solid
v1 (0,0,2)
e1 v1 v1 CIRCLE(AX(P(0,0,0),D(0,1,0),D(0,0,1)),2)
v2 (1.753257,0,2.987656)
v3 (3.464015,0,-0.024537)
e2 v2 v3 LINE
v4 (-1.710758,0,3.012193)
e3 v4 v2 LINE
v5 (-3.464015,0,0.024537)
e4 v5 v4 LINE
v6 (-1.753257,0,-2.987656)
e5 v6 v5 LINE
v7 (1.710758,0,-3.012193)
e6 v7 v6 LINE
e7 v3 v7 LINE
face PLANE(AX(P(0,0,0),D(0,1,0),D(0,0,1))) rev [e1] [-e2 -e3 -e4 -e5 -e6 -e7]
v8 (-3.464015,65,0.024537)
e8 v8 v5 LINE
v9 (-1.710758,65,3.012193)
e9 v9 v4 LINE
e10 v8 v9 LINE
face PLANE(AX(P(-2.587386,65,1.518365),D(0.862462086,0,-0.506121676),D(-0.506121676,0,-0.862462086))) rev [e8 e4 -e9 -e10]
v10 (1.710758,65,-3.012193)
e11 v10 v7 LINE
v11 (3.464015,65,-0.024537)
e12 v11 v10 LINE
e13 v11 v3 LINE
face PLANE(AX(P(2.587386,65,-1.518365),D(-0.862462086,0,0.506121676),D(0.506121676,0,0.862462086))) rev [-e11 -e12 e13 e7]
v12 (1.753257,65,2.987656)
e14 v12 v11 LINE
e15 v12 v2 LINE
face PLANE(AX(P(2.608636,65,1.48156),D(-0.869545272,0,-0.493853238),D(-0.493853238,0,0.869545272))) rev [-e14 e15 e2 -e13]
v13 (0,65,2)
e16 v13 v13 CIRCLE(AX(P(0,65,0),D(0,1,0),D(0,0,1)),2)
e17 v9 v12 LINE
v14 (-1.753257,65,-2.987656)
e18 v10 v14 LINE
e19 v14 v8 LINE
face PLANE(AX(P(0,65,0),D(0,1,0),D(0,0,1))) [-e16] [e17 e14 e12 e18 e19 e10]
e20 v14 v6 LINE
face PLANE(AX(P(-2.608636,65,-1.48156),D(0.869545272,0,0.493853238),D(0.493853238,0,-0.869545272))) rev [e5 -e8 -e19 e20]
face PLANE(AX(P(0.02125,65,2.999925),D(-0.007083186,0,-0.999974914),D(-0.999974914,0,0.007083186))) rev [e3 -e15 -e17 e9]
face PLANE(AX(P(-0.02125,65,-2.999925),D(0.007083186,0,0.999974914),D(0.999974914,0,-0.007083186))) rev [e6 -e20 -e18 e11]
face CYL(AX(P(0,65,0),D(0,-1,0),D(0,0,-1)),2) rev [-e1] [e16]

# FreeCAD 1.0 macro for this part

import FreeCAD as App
import Part
import Sketcher
from FreeCAD import Vector

doc = App.newDocument("Part")
body = doc.addObject("PartDesign::Body", "Body")

# Sketch on XZ plane
sketch1 = doc.addObject("Sketcher::SketchObject", "Sketch")
body.addObject(sketch1)
sketch1.AttachmentSupport = (doc.XZ_Plane, [""])
sketch1.MapMode = "FlatFace"
sketch1.addGeometry([
    Part.LineSegment(Vector(1.753257, 2.987656, 0), Vector(3.464015, -0.024537, 0)),  # 0
    Part.LineSegment(Vector(3.464015, -0.024537, 0), Vector(1.710758, -3.012193, 0)),  # 1
    Part.LineSegment(Vector(1.710758, -3.012193, 0), Vector(-1.753257, -2.987656, 0)),  # 2
    Part.LineSegment(Vector(-1.753257, -2.987656, 0), Vector(-3.464015, 0.024537, 0)),  # 3
    Part.LineSegment(Vector(-3.464015, 0.024537, 0), Vector(-1.710758, 3.012193, 0)),  # 4
    Part.LineSegment(Vector(-1.710758, 3.012193, 0), Vector(1.753257, 2.987656, 0)),  # 5
    Part.Circle(Vector(0, 0, 0), Vector(0, 0, 1), 2),  # 6
], False)
sketch1.addConstraint([
    Sketcher.Constraint("Coincident", 0, 2, 1, 1),
    Sketcher.Constraint("Coincident", 1, 2, 2, 1),
    Sketcher.Constraint("Coincident", 2, 2, 3, 1),
    Sketcher.Constraint("Coincident", 3, 2, 4, 1),
    Sketcher.Constraint("Coincident", 4, 2, 5, 1),
    Sketcher.Constraint("Coincident", 5, 2, 0, 1),
    Sketcher.Constraint("Coincident", 6, 3, -1, 1),
    Sketcher.Constraint("Symmetric", 0, 2, 3, 2, -1, 1),
    Sketcher.Constraint("Symmetric", 1, 2, 4, 2, -1, 1),
    Sketcher.Constraint("Symmetric", 2, 2, 5, 2, -1, 1),
    Sketcher.Constraint("Equal", 0, 1),
    Sketcher.Constraint("Equal", 1, 2),
    Sketcher.Constraint("Diameter", 6, 4.0),
    Sketcher.Constraint("Distance", 0, 3.464102),
    Sketcher.Constraint("DistanceX", 2, 2, 4, 2, 0.042499),
    Sketcher.Constraint("DistanceX", 2, 2, 0, 2, 5.217272),
    Sketcher.Constraint("DistanceY", 2, 2, 0, 2, 2.963119),
])
pad1 = doc.addObject("PartDesign::Pad", "Pad")
body.addObject(pad1)
pad1.Profile = sketch1
pad1.Length = 65
pad1.Reversed = True

doc.recompute()
